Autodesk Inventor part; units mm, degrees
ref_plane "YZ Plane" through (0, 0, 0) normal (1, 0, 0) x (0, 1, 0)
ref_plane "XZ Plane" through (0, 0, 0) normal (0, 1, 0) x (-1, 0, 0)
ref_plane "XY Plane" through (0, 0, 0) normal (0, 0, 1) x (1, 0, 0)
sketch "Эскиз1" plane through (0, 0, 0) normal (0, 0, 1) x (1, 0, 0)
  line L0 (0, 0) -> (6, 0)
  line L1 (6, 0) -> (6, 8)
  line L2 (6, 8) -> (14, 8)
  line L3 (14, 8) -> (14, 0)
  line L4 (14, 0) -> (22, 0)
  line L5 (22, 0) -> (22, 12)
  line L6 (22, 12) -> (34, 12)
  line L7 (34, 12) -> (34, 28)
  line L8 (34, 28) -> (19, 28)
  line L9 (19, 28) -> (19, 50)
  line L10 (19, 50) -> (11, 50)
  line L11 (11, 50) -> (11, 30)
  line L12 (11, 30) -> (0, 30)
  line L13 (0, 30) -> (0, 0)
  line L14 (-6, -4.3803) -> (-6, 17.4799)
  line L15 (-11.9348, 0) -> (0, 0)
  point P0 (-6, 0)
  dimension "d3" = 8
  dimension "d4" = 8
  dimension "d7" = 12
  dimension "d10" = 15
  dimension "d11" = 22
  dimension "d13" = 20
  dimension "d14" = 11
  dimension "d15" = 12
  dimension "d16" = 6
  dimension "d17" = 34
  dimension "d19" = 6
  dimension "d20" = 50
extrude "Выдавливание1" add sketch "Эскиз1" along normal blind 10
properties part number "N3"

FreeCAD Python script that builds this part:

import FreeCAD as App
import Part
import Sketcher

V = App.Vector

doc = App.newDocument("Part")
params = doc.addObject("Spreadsheet::Sheet", "Params")
for row, (alias, value) in enumerate([
    ("sketch1_width", "6 mm"),
    ("sketch1_width2", "8 mm"),
    ("sketch1_width3", "12 mm"),
    ("sketch1_width4", "15 mm"),
    ("sketch1_height", "22 mm"),
    ("pad1_length", "10 mm"),
], start=1):
    params.set(f"A{row}", alias)
    params.set(f"B{row}", "=" + value)
    params.setAlias(f"B{row}", alias)

body = doc.addObject("PartDesign::Body", "Body")

sketch1 = body.newObject("Sketcher::SketchObject", "Sketch")
sketch1.AttachmentSupport = (doc.getObject("XY_Plane"), [""])
sketch1.MapMode = "FlatFace"
sketch1.addGeometry([
    Part.LineSegment(V(0, 30, 0), V(0, 0, 0)),
    Part.LineSegment(V(0, 0, 0), V(6, 0, 0)),
    Part.LineSegment(V(6, 0, 0), V(6, 8, 0)),
    Part.LineSegment(V(6, 8, 0), V(14, 8, 0)),
    Part.LineSegment(V(14, 8, 0), V(14, 0, 0)),
    Part.LineSegment(V(14, 0, 0), V(22, 0, 0)),
    Part.LineSegment(V(22, 0, 0), V(22, 12, 0)),
    Part.LineSegment(V(22, 12, 0), V(34, 12, 0)),
    Part.LineSegment(V(34, 12, 0), V(34, 28, 0)),
    Part.LineSegment(V(34, 28, 0), V(19, 28, 0)),
    Part.LineSegment(V(19, 28, 0), V(19, 50, 0)),
    Part.LineSegment(V(19, 50, 0), V(11, 50, 0)),
    Part.LineSegment(V(11, 50, 0), V(11, 30, 0)),
    Part.LineSegment(V(11, 30, 0), V(0, 30, 0)),
], False)
sketch1.addConstraint([
    Sketcher.Constraint("Coincident", 0, 2, 1, 1),
    Sketcher.Constraint("Coincident", 1, 2, 2, 1),
    Sketcher.Constraint("Coincident", 2, 2, 3, 1),
    Sketcher.Constraint("Coincident", 3, 2, 4, 1),
    Sketcher.Constraint("Coincident", 4, 2, 5, 1),
    Sketcher.Constraint("Coincident", 5, 2, 6, 1),
    Sketcher.Constraint("Coincident", 6, 2, 7, 1),
    Sketcher.Constraint("Coincident", 7, 2, 8, 1),
    Sketcher.Constraint("Coincident", 8, 2, 9, 1),
    Sketcher.Constraint("Coincident", 9, 2, 10, 1),
    Sketcher.Constraint("Coincident", 10, 2, 11, 1),
    Sketcher.Constraint("Coincident", 11, 2, 12, 1),
    Sketcher.Constraint("Coincident", 12, 2, 13, 1),
    Sketcher.Constraint("Coincident", 13, 2, 0, 1),
    Sketcher.Constraint("Vertical", 0),
    Sketcher.Constraint("Horizontal", 1),
    Sketcher.Constraint("Vertical", 2),
    Sketcher.Constraint("Horizontal", 3),
    Sketcher.Constraint("Vertical", 4),
    Sketcher.Constraint("Horizontal", 5),
    Sketcher.Constraint("Vertical", 6),
    Sketcher.Constraint("Horizontal", 7),
    Sketcher.Constraint("Vertical", 8),
    Sketcher.Constraint("Horizontal", 9),
    Sketcher.Constraint("Vertical", 10),
    Sketcher.Constraint("Horizontal", 11),
    Sketcher.Constraint("Vertical", 12),
    Sketcher.Constraint("Horizontal", 13),
    Sketcher.Constraint("Coincident", 0, 2, -1, 1),
    Sketcher.Constraint("PointOnObject", 4, 2, -1),
    Sketcher.Constraint("Equal", 3, 5),
    Sketcher.Constraint("Equal", 5, 11),
    Sketcher.Constraint("Equal", 11, 2),
    Sketcher.Constraint("Equal", 7, 6),
    Sketcher.Constraint("DistanceX", 1, 1, 1, 2, 6.0),
    Sketcher.Constraint("DistanceX", 3, 1, 3, 2, 8.0),
    Sketcher.Constraint("DistanceX", 7, 1, 7, 2, 12.0),
    Sketcher.Constraint("DistanceX", 9, 2, 9, 1, 15.0),
    Sketcher.Constraint("DistanceY", 10, 1, 10, 2, 22.0),
    Sketcher.Constraint("DistanceY", 12, 2, 12, 1, 20.0),
    Sketcher.Constraint("DistanceY", -1, 1, 10, 2, 50.0),
])
sketch1.setExpression("Constraints[34]", "Params.sketch1_width")
sketch1.setExpression("Constraints[35]", "Params.sketch1_width2")
sketch1.setExpression("Constraints[36]", "Params.sketch1_width3")
sketch1.setExpression("Constraints[37]", "Params.sketch1_width4")
sketch1.setExpression("Constraints[38]", "Params.sketch1_height")
pad1 = body.newObject("PartDesign::Pad", "Pad")
pad1.Profile = sketch1
pad1.setExpression("Length", "Params.pad1_length")

doc.recompute()
